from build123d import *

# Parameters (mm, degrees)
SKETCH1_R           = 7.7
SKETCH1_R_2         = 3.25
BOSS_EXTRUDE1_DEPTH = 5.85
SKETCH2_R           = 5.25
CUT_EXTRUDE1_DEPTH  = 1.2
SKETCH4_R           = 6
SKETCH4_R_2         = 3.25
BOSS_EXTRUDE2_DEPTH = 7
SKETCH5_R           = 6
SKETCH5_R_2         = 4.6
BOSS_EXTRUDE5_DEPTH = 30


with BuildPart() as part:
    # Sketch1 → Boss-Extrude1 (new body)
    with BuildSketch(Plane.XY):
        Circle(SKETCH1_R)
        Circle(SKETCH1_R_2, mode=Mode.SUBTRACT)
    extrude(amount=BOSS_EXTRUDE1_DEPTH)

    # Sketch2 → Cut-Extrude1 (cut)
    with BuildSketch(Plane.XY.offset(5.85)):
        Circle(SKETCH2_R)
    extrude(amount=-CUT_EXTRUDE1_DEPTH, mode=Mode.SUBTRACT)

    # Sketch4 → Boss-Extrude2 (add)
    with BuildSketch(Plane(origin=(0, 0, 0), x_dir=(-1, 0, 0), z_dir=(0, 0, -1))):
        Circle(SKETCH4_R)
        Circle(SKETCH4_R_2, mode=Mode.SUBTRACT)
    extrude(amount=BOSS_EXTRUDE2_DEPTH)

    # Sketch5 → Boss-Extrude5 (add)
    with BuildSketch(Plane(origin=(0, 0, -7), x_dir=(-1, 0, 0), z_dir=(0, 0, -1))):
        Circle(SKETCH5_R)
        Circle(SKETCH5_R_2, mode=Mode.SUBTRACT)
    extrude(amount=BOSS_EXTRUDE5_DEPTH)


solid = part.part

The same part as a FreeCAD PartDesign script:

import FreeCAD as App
import Part
import Sketcher
Q = App.Units.Quantity

doc = App.newDocument("Part")
params = doc.addObject("Spreadsheet::Sheet", "Params")
for row, (alias, value) in enumerate([
    ("sketch1_diameter", "15.4 mm"),
    ("sketch1_diameter2", "6.5 mm"),
    ("pad1_length", "5.85 mm"),
    ("sketch2_diameter", "10.5 mm"),
    ("pocket1_length", "1.2 mm"),
    ("sketch3_diameter", "12 mm"),
    ("sketch3_diameter2", "6.5 mm"),
    ("pad2_length", "7 mm"),
    ("sketch4_diameter", "12 mm"),
    ("sketch4_diameter2", "9.2 mm"),
    ("pad3_length", "30 mm"),
], start=1):
    params.set(f"A{row}", alias)
    params.set(f"B{row}", "=" + value)
    params.setAlias(f"B{row}", alias)

body = doc.addObject("PartDesign::Body", "Body")

sketch1 = body.newObject("Sketcher::SketchObject", "Sketch")
sketch1.AttachmentSupport = (doc.getObject("XY_Plane"), [""])
sketch1.MapMode = "FlatFace"
sketch1.addGeometry([
    Part.Circle(App.Vector(0, 0, 0), App.Vector(0, 0, 1), 7.7),
    Part.Circle(App.Vector(0, 0, 0), App.Vector(0, 0, 1), 3.2),
], False)
sketch1.addConstraint([
    Sketcher.Constraint("Coincident", 0, 3, -1, 1),
    Sketcher.Constraint("Coincident", 1, 3, -1, 1),
    Sketcher.Constraint("Diameter", 0, Q("15.4 mm")),
    Sketcher.Constraint("Diameter", 1, Q("6.5 mm")),
])
sketch1.setExpression("Constraints[2]", "Params.sketch1_diameter")
sketch1.setExpression("Constraints[3]", "Params.sketch1_diameter2")
pad1 = body.newObject("PartDesign::Pad", "Pad")
pad1.Profile = sketch1
pad1.setExpression("Length", "Params.pad1_length")

sketch2 = body.newObject("Sketcher::SketchObject", "Sketch001")
sketch2.AttachmentSupport = (doc.getObject("XY_Plane"), [""])
sketch2.MapMode = "FlatFace"
sketch2.AttachmentOffset = App.Placement(App.Vector(0, 0, 5.85), App.Rotation())
sketch2.addGeometry(Part.Circle(App.Vector(0, 0, 0), App.Vector(0, 0, 1), 5), False)
sketch2.addConstraint([
    Sketcher.Constraint("Coincident", 0, 3, -1, 1),
    Sketcher.Constraint("Diameter", 0, Q("10.5 mm")),
])
sketch2.setExpression("Constraints[1]", "Params.sketch2_diameter")
pocket1 = body.newObject("PartDesign::Pocket", "Pocket")
pocket1.Profile = sketch2
pocket1.setExpression("Length", "Params.pocket1_length")

sketch3 = body.newObject("Sketcher::SketchObject", "Sketch002")
sketch3.AttachmentSupport = (doc.getObject("XY_Plane"), [""])
sketch3.MapMode = "FlatFace"
sketch3.addGeometry([
    Part.Circle(App.Vector(0, 0, 0), App.Vector(0, 0, 1), 6),
    Part.Circle(App.Vector(0, 0, 0), App.Vector(0, 0, 1), 3.2),
], False)
sketch3.addConstraint([
    Sketcher.Constraint("Coincident", 0, 3, -1, 1),
    Sketcher.Constraint("Coincident", 1, 3, -1, 1),
    Sketcher.Constraint("Diameter", 0, Q("12 mm")),
    Sketcher.Constraint("Diameter", 1, Q("6.5 mm")),
])
sketch3.setExpression("Constraints[2]", "Params.sketch3_diameter")
sketch3.setExpression("Constraints[3]", "Params.sketch3_diameter2")
pad2 = body.newObject("PartDesign::Pad", "Pad001")
pad2.Profile = sketch3
pad2.setExpression("Length", "Params.pad2_length")
pad2.Reversed = True

sketch4 = body.newObject("Sketcher::SketchObject", "Sketch003")
sketch4.AttachmentSupport = (doc.getObject("XY_Plane"), [""])
sketch4.MapMode = "FlatFace"
sketch4.AttachmentOffset = App.Placement(App.Vector(0, 0, -7), App.Rotation())
sketch4.addGeometry([
    Part.Circle(App.Vector(0, 0, 0), App.Vector(0, 0, 1), 6),
    Part.Circle(App.Vector(0, 0, 0), App.Vector(0, 0, 1), 4.6),
], False)
sketch4.addConstraint([
    Sketcher.Constraint("Coincident", 0, 3, -1, 1),
    Sketcher.Constraint("Coincident", 1, 3, -1, 1),
    Sketcher.Constraint("Diameter", 0, Q("12 mm")),
    Sketcher.Constraint("Diameter", 1, Q("9.2 mm")),
])
sketch4.setExpression("Constraints[2]", "Params.sketch4_diameter")
sketch4.setExpression("Constraints[3]", "Params.sketch4_diameter2")
pad3 = body.newObject("PartDesign::Pad", "Pad002")
pad3.Profile = sketch4
pad3.setExpression("Length", "Params.pad3_length")
pad3.Reversed = True

doc.recompute()
